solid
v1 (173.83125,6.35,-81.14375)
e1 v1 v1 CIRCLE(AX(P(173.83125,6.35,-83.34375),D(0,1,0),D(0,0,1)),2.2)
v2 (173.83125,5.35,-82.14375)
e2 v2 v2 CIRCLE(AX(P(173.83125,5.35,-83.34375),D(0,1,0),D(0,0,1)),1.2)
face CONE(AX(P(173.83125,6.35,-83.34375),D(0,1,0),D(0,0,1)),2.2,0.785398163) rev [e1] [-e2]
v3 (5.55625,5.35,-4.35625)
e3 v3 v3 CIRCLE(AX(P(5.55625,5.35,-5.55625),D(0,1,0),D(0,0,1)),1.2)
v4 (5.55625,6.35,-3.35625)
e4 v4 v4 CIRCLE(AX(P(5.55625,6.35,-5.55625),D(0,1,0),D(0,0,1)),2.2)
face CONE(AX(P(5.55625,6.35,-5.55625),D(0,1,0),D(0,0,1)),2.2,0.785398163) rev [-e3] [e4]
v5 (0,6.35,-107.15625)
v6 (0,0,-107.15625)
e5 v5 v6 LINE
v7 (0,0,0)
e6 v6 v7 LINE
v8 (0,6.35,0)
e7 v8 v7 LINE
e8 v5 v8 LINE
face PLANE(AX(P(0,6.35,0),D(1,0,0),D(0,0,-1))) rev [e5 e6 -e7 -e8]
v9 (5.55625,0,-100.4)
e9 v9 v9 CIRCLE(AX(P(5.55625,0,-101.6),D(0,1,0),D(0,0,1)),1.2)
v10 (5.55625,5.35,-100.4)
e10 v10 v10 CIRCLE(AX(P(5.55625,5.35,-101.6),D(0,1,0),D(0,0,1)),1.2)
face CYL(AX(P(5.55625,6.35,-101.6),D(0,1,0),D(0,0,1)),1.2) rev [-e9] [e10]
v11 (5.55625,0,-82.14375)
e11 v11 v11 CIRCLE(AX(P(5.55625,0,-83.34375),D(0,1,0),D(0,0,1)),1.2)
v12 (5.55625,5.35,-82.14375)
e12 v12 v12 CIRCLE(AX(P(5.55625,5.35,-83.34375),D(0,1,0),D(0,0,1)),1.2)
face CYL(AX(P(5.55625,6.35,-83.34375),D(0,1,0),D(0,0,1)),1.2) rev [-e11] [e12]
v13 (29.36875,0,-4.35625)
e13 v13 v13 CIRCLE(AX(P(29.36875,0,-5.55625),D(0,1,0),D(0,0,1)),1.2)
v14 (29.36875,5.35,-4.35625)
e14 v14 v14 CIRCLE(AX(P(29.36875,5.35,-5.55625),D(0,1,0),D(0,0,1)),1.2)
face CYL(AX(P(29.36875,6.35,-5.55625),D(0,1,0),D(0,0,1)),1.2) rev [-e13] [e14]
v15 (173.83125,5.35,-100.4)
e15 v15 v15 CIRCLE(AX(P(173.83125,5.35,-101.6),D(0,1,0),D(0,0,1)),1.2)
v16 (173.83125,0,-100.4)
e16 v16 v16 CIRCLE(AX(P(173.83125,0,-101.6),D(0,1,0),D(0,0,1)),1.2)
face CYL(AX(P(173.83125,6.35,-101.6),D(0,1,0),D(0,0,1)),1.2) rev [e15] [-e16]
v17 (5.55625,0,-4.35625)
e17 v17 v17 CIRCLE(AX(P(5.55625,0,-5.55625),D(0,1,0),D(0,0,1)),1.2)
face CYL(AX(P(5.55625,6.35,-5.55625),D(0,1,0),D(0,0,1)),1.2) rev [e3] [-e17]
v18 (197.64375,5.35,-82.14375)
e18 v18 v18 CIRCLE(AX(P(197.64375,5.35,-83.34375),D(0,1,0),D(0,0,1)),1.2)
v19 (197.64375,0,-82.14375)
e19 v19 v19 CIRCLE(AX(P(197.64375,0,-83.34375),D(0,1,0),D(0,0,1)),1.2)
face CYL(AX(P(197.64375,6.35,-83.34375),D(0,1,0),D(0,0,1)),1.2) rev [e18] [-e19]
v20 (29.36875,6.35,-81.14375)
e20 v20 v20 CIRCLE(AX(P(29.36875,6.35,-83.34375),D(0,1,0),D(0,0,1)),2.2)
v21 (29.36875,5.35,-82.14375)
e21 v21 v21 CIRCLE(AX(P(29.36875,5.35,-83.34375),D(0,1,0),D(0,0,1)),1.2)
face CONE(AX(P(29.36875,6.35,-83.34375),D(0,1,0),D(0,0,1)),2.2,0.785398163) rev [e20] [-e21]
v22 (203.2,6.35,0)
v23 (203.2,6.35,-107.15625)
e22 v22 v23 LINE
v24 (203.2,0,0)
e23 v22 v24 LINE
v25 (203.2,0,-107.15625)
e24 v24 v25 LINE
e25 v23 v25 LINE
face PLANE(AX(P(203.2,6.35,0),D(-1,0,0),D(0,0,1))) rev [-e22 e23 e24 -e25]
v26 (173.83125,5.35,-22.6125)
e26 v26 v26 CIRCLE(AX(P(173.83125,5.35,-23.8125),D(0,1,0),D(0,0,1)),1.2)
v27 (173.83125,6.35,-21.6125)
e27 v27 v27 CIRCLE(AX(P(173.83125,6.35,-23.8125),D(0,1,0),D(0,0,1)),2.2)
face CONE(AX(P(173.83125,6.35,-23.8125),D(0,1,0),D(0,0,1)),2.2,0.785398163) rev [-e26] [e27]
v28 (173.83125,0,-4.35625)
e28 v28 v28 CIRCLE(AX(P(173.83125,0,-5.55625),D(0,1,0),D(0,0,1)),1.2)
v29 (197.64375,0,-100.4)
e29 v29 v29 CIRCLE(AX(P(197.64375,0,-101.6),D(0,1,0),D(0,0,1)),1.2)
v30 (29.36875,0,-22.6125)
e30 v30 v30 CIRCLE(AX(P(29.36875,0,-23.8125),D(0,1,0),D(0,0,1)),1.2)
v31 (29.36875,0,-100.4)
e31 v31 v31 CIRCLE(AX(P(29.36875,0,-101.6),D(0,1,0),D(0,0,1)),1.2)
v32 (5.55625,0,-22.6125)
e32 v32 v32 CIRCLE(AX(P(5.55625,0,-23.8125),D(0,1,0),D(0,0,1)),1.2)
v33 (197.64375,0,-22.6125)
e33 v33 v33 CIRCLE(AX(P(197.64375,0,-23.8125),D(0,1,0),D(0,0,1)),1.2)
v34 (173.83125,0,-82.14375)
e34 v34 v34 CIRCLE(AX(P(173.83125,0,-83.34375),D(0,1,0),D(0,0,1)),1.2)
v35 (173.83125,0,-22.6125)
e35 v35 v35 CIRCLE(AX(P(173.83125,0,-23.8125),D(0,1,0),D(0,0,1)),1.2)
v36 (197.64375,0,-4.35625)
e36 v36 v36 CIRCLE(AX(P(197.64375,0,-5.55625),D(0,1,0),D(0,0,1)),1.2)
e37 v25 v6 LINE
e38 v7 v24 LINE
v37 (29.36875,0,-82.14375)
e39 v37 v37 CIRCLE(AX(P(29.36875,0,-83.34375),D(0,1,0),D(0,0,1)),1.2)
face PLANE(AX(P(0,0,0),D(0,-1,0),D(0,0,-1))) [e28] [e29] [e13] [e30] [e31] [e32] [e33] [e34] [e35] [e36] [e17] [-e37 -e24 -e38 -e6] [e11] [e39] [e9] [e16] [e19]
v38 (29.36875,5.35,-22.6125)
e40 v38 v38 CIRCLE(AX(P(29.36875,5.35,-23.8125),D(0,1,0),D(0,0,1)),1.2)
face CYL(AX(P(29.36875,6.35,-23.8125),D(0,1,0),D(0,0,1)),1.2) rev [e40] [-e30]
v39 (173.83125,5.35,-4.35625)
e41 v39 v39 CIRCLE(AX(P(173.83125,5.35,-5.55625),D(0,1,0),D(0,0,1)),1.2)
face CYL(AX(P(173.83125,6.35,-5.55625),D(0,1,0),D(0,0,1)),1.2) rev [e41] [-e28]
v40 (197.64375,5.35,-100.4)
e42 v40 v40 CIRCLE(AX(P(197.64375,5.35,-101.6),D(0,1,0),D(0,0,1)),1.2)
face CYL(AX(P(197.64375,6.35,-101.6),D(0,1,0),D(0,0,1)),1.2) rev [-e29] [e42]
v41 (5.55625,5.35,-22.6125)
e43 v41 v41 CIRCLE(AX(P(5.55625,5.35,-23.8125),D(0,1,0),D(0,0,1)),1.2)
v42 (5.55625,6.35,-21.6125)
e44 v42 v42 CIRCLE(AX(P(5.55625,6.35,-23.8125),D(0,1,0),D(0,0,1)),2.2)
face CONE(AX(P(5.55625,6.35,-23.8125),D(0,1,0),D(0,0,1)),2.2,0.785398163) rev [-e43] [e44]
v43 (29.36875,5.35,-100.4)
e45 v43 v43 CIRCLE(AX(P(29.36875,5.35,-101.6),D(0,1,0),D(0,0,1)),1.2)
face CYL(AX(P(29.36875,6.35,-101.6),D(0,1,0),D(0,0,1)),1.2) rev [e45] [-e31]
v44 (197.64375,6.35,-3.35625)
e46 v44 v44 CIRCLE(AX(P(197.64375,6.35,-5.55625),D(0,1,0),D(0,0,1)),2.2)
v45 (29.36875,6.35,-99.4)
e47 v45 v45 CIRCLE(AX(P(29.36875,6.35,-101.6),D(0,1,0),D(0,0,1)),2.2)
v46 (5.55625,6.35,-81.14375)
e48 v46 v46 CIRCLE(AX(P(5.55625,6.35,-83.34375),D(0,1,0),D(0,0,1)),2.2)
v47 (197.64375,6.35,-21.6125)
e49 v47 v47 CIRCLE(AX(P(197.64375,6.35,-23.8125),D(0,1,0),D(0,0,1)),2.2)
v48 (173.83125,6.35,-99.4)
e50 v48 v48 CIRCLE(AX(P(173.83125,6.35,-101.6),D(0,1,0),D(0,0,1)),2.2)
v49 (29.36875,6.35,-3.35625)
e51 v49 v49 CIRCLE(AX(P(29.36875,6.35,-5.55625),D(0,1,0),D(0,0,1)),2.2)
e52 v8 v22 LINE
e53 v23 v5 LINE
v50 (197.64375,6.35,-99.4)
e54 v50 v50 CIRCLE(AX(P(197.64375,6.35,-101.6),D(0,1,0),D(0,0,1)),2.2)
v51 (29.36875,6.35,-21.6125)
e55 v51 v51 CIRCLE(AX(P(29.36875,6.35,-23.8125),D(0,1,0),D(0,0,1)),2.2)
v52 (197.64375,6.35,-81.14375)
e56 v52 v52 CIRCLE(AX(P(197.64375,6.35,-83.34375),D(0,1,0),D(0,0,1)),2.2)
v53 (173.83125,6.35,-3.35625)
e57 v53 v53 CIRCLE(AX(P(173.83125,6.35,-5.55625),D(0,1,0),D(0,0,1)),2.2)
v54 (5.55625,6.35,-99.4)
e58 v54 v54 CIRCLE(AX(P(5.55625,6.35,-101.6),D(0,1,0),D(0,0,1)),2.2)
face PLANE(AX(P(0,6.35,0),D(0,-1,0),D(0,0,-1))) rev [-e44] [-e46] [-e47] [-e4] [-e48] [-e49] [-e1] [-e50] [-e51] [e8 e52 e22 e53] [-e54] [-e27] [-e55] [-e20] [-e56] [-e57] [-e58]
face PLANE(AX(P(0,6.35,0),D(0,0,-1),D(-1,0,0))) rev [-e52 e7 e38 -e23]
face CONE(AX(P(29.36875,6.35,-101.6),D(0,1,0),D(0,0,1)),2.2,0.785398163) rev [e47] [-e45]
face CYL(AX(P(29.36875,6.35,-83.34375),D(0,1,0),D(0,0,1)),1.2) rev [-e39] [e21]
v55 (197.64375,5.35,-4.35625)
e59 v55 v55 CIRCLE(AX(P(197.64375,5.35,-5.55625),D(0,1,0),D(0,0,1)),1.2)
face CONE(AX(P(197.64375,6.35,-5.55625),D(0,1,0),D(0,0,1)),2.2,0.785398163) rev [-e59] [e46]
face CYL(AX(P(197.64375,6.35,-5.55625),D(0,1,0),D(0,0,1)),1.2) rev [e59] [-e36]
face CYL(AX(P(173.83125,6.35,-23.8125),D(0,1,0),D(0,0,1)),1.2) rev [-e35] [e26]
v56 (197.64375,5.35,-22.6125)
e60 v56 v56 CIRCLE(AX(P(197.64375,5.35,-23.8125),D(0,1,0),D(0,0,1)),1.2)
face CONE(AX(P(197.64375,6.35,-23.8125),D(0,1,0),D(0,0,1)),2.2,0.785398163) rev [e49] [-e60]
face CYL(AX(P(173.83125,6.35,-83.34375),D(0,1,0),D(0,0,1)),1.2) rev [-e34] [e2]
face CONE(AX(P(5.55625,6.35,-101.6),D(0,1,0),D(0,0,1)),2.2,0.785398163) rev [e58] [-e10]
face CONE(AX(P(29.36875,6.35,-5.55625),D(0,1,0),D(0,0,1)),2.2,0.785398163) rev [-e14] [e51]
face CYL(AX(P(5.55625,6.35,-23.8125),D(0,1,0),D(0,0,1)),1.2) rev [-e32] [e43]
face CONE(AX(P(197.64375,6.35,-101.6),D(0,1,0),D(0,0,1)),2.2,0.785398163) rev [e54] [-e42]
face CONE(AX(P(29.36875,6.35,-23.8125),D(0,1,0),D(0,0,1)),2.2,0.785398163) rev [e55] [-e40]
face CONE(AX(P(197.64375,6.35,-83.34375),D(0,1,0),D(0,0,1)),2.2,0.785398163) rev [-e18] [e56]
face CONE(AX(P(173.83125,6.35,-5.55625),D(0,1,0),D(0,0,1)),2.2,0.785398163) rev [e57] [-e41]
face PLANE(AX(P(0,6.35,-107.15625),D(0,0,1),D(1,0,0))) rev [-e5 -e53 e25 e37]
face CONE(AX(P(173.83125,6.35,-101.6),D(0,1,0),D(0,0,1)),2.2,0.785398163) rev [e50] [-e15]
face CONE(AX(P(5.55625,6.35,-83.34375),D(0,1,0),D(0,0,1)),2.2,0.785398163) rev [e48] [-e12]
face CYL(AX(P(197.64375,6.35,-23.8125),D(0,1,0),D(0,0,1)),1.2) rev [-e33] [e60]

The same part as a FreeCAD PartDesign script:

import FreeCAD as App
import Part
import Sketcher

V = App.Vector
Q = App.Units.Quantity

doc = App.newDocument("Part")
body = doc.addObject("PartDesign::Body", "Body")

sketch1 = body.newObject("Sketcher::SketchObject", "Sketch")
sketch1.AttachmentSupport = (doc.getObject("XZ_Plane"), [""])
sketch1.MapMode = "FlatFace"
sketch1.addGeometry([
    Part.LineSegment(V(0, -107, 0), V(0, 0, 0)),
    Part.LineSegment(V(0, 0, 0), V(203, 0, 0)),
    Part.LineSegment(V(203, 0, 0), V(203, -107, 0)),
    Part.LineSegment(V(203, -107, 0), V(0, -107, 0)),
], False)
sketch1.addConstraint([
    Sketcher.Constraint("Coincident", 0, 2, 1, 1),
    Sketcher.Constraint("Coincident", 1, 2, 2, 1),
    Sketcher.Constraint("Coincident", 2, 2, 3, 1),
    Sketcher.Constraint("Coincident", 3, 2, 0, 1),
    Sketcher.Constraint("Vertical", 0),
    Sketcher.Constraint("Horizontal", 1),
    Sketcher.Constraint("Vertical", 2),
    Sketcher.Constraint("Horizontal", 3),
    Sketcher.Constraint("Coincident", 0, 2, -1, 1),
    Sketcher.Constraint("DistanceX", 1, 1, 1, 2, Q("8 in")),
    Sketcher.Constraint("DistanceY", 0, 1, 0, 2, Q("4.21875 in")),
])
pad1 = body.newObject("PartDesign::Pad", "Pad")
pad1.Profile = sketch1
pad1.Length = Q("0.25 in")
pad1.Reversed = True

sketch2 = body.newObject("Sketcher::SketchObject", "Sketch001")
sketch2.AttachmentSupport = (doc.getObject("XZ_Plane"), [""])
sketch2.MapMode = "FlatFace"
sketch2.AttachmentOffset = App.Placement(V(0, 0, -0.25 * 25.4), App.Rotation())
sketch2.addGeometry([
    Part.Circle(V(5.6, -101.6, 0), V(0, 0, 1), 1.2),
    Part.Circle(V(1.2, -116.4, 0), V(0, 0, 1), 1.2),
    Part.Circle(V(1.2, -113.4, 0), V(0, 0, 1), 1.2),
    Part.Circle(V(29.4, -101.6, 0), V(0, 0, 1), 1.2),
    Part.Circle(V(5.6, -5.6, 0), V(0, 0, 1), 1.2),
    Part.Circle(V(29.4, -5.6, 0), V(0, 0, 1), 1.2),
    Part.Circle(V(173.8, -5.6, 0), V(0, 0, 1), 1.2),
    Part.Circle(V(173.8, -101.6, 0), V(0, 0, 1), 1.2),
    Part.Circle(V(197.6, -101.6, 0), V(0, 0, 1), 1.2),
    Part.Circle(V(197.6, -5.6, 0), V(0, 0, 1), 1.2),
    Part.Circle(V(5.6, -83.3, 0), V(0, 0, 1), 1.2),
    Part.Circle(V(29.4, -83.3, 0), V(0, 0, 1), 1.2),
    Part.Circle(V(5.6, -23.8, 0), V(0, 0, 1), 1.2),
    Part.Circle(V(173.8, -83.3, 0), V(0, 0, 1), 1.2),
    Part.Circle(V(197.6, -83.3, 0), V(0, 0, 1), 1.2),
    Part.Circle(V(173.8, -23.8, 0), V(0, 0, 1), 1.2),
    Part.Circle(V(197.6, -23.8, 0), V(0, 0, 1), 1.2),
    Part.Circle(V(29.4, -23.8, 0), V(0, 0, 1), 1.2),
], False)
sketch2.addConstraint([
    Sketcher.Constraint("Equal", 0, 1),
    Sketcher.Constraint("Equal", 1, 2),
    Sketcher.Constraint("Equal", 2, 3),
    Sketcher.Constraint("Equal", 3, 4),
    Sketcher.Constraint("Equal", 4, 5),
    Sketcher.Constraint("Equal", 5, 6),
    Sketcher.Constraint("Equal", 6, 7),
    Sketcher.Constraint("Equal", 7, 8),
    Sketcher.Constraint("Equal", 8, 9),
    Sketcher.Constraint("Equal", 9, 10),
    Sketcher.Constraint("Equal", 10, 11),
    Sketcher.Constraint("Equal", 11, 12),
    Sketcher.Constraint("Equal", 12, 13),
    Sketcher.Constraint("Equal", 13, 14),
    Sketcher.Constraint("Equal", 14, 15),
    Sketcher.Constraint("Equal", 15, 16),
    Sketcher.Constraint("Equal", 16, 17),
    Sketcher.Constraint("Horizontal", 0, 3, 3, 3),
    Sketcher.Constraint("Horizontal", 4, 3, 5, 3),
    Sketcher.Constraint("Horizontal", 5, 3, 6, 3),
    Sketcher.Constraint("Horizontal", 3, 3, 7, 3),
    Sketcher.Constraint("Horizontal", 7, 3, 8, 3),
    Sketcher.Constraint("Horizontal", 6, 3, 9, 3),
    Sketcher.Constraint("Horizontal", 10, 3, 11, 3),
    Sketcher.Constraint("Horizontal", 11, 3, 13, 3),
    Sketcher.Constraint("Horizontal", 13, 3, 14, 3),
    Sketcher.Constraint("Horizontal", 12, 3, 15, 3),
    Sketcher.Constraint("Horizontal", 15, 3, 16, 3),
    Sketcher.Constraint("Horizontal", 16, 3, 17, 3),
    Sketcher.Constraint("Vertical", 1, 3, 2, 3),
    Sketcher.Constraint("Vertical", 0, 3, 4, 3),
    Sketcher.Constraint("Vertical", 3, 3, 5, 3),
    Sketcher.Constraint("Vertical", 6, 3, 7, 3),
    Sketcher.Constraint("Vertical", 8, 3, 9, 3),
    Sketcher.Constraint("Vertical", 4, 3, 10, 3),
    Sketcher.Constraint("Vertical", 5, 3, 11, 3),
    Sketcher.Constraint("Vertical", 10, 3, 12, 3),
    Sketcher.Constraint("Vertical", 7, 3, 13, 3),
    Sketcher.Constraint("Vertical", 9, 3, 14, 3),
    Sketcher.Constraint("Vertical", 13, 3, 15, 3),
    Sketcher.Constraint("Vertical", 14, 3, 16, 3),
    Sketcher.Constraint("Vertical", 11, 3, 17, 3),
    Sketcher.Constraint("DistanceY", 0, 3, -1, 1, Q("4 in")),
    Sketcher.Constraint("Diameter", 0, 2.4),
    Sketcher.Constraint("DistanceX", -1, 1, 0, 3, Q("0.21875 in")),
    Sketcher.Constraint("DistanceX", -1, 1, 3, 3, Q("1.15625 in")),
    Sketcher.Constraint("DistanceY", 4, 3, -1, 1, Q("0.21875 in")),
    Sketcher.Constraint("DistanceX", -1, 1, 6, 3, Q("6.84375 in")),
    Sketcher.Constraint("DistanceX", -1, 1, 8, 3, Q("7.78125 in")),
    Sketcher.Constraint("DistanceY", 10, 3, -1, 1, Q("3.28125 in")),
    Sketcher.Constraint("DistanceY", 12, 3, -1, 1, Q("0.9375 in")),
    Sketcher.Constraint("DistanceY", 1, 3, -1, 1, 116.400099),
    Sketcher.Constraint("DistanceX", -1, 1, 1, 3, 1.201469),
    Sketcher.Constraint("DistanceY", 2, 3, -1, 1, 113.370035),
])
doc.recompute()
hole = body.newObject("PartDesign::Hole", "Hole")
hole.Profile = sketch2
hole.ThreadType = "None"
hole.Diameter = 2.4
hole.DepthType = "ThroughAll"
hole.HoleCutType = "Countersink"
hole.HoleCutDiameter = 4.4
hole.HoleCutCountersinkAngle = 90
hole.Reversed = True

doc.recompute()
